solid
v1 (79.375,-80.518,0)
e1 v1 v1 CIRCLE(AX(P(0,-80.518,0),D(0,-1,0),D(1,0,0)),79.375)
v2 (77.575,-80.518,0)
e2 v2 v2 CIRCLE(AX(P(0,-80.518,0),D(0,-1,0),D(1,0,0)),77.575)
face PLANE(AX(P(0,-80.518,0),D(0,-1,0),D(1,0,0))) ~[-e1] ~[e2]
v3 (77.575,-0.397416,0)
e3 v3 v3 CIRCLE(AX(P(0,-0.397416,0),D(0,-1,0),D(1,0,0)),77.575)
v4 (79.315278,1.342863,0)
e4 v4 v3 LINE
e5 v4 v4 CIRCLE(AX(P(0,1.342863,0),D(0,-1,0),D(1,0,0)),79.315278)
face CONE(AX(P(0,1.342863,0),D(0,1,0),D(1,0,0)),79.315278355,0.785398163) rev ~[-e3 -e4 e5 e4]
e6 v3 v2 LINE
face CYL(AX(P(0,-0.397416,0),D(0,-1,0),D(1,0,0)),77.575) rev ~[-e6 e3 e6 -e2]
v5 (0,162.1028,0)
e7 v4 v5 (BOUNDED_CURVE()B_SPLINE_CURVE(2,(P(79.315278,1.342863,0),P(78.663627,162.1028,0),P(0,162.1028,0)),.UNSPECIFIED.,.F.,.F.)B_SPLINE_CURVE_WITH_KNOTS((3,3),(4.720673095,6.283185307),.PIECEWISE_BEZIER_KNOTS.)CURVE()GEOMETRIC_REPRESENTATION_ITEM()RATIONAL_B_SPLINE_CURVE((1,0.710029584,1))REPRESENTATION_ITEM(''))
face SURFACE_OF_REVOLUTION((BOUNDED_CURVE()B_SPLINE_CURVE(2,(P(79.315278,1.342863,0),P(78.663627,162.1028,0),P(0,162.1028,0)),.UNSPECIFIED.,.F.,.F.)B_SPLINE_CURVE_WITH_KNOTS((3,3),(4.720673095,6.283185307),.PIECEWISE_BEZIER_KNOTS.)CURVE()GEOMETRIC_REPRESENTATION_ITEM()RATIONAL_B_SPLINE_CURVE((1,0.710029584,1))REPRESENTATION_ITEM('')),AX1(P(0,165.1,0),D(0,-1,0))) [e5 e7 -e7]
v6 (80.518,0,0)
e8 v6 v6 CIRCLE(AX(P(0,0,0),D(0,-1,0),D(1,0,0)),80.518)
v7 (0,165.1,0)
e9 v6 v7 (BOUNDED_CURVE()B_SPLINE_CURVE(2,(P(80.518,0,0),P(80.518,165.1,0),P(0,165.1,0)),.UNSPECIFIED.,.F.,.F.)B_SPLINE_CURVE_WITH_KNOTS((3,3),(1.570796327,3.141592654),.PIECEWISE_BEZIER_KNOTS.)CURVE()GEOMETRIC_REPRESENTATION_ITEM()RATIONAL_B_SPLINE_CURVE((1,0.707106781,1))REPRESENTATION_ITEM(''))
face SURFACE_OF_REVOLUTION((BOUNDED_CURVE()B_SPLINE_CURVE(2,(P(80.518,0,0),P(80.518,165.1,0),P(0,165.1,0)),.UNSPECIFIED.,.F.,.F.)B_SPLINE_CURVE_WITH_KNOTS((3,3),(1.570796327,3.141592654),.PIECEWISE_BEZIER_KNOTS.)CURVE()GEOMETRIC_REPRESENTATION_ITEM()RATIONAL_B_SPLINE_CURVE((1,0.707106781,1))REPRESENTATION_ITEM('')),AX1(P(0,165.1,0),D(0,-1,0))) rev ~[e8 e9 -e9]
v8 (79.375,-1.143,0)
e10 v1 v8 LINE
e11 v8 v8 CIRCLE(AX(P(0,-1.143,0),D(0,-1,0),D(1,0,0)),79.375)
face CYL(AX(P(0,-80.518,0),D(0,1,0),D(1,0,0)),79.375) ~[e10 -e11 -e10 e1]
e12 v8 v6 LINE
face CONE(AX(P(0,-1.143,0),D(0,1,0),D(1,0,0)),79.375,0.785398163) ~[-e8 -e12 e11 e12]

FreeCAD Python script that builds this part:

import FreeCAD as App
import Part
import Sketcher
Q = App.Units.Quantity

doc = App.newDocument("Part")
body = doc.addObject("PartDesign::Body", "Body")

# Sketch on XY plane
sketch1 = body.newObject("Sketcher::SketchObject", "Sketch")
sketch1.AttachmentSupport = (doc.getObject("XY_Plane"), [""])
sketch1.MapMode = "FlatFace"
sketch1.addGeometry([
    Part.LineSegment(App.Vector(0, 165.1, 0), App.Vector(0, 162.1028, 0)),  # 0
    Part.BSplineCurve([App.Vector(79.315278, 1.342863, 0), App.Vector(78.663627, 162.1028, 0), App.Vector(0, 162.1028, 0)], [3, 3], [4.720673095, 6.283185307], False, 2, [1, 0.710029584, 1], False),  # 1
    Part.LineSegment(App.Vector(79.315278, 1.342863, 0), App.Vector(77.575, -0.397416, 0)),  # 2
    Part.LineSegment(App.Vector(77.575, -0.397416, 0), App.Vector(77.575, -80.518, 0)),  # 3
    Part.LineSegment(App.Vector(77.575, -80.518, 0), App.Vector(79.375, -80.518, 0)),  # 4
    Part.LineSegment(App.Vector(79.375, -80.518, 0), App.Vector(79.375, -1.143, 0)),  # 5
    Part.LineSegment(App.Vector(79.375, -1.143, 0), App.Vector(80.518, 0, 0)),  # 6
    Part.BSplineCurve([App.Vector(80.518, 0, 0), App.Vector(80.518, 165.1, 0), App.Vector(0, 165.1, 0)], [3, 3], [1.570796327, 3.141592654], False, 2, [1, 0.707106781, 1], False),  # 7
], False)
sketch1.addConstraint([
    Sketcher.Constraint("Block", 1),
    Sketcher.Constraint("Block", 7),
    Sketcher.Constraint("Coincident", 0, 2, 1, 2),
    Sketcher.Constraint("Coincident", 1, 1, 2, 1),
    Sketcher.Constraint("Coincident", 2, 2, 3, 1),
    Sketcher.Constraint("Coincident", 3, 2, 4, 1),
    Sketcher.Constraint("Coincident", 4, 2, 5, 1),
    Sketcher.Constraint("Coincident", 5, 2, 6, 1),
    Sketcher.Constraint("Coincident", 6, 2, 7, 1),
    Sketcher.Constraint("Coincident", 7, 2, 0, 1),
    Sketcher.Constraint("Vertical", 3),
    Sketcher.Constraint("Horizontal", 4),
    Sketcher.Constraint("Vertical", 5),
    Sketcher.Constraint("DistanceY", 5, 1, 5, 2, Q("3.125 in")),
    Sketcher.Constraint("DistanceY", 3, 2, -1, 1, Q("3.17 in")),
    Sketcher.Constraint("DistanceX", -1, 1, 4, 2, Q("3.125 in")),
    Sketcher.Constraint("DistanceX", 4, 1, 4, 2, Q("1.8 mm")),
    Sketcher.Constraint("DistanceY", 3, 2, 3, 1, Q("80.120584 mm")),
])
revolution = body.newObject("PartDesign::Revolution", "Revolution")
revolution.Profile = sketch1
revolution.ReferenceAxis = (sketch1, ["V_Axis"])
revolution.Angle = 360

doc.recompute()
